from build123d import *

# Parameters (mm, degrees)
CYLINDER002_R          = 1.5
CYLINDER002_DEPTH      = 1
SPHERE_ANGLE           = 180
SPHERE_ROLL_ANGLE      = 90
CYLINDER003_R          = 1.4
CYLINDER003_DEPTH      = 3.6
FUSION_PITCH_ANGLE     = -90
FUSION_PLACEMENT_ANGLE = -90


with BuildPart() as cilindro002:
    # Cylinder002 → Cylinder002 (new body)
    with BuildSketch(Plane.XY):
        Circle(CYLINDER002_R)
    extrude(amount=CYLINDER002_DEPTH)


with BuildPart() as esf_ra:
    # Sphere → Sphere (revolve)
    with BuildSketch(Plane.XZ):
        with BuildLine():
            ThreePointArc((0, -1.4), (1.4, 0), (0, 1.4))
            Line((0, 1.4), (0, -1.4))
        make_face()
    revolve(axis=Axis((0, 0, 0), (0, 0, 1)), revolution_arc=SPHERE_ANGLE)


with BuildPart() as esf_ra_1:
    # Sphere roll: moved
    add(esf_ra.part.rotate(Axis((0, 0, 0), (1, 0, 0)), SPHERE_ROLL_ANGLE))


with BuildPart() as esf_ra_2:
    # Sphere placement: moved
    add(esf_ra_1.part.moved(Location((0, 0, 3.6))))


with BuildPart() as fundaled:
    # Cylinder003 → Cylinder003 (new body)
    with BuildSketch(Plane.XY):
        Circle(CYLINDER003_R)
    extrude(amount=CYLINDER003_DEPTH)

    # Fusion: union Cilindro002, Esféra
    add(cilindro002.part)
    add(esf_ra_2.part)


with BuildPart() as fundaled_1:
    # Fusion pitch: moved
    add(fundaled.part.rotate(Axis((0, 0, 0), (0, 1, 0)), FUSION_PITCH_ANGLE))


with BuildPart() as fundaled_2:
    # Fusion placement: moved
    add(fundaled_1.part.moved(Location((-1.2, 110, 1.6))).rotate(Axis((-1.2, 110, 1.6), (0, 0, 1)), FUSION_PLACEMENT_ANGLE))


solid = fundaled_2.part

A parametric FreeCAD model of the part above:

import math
import FreeCAD as App
import Part
import Sketcher
Q = App.Units.Quantity

doc = App.newDocument("Part")
body = doc.addObject("PartDesign::Body", "Body")

# Sketch on XY plane
sketch1 = body.newObject("Sketcher::SketchObject", "Sketch")
sketch1.AttachmentSupport = (doc.getObject("XY_Plane"), [""])
sketch1.MapMode = "FlatFace"
sketch1.addGeometry(Part.Circle(App.Vector(0, 0, 0), App.Vector(0, 0, 1), 1.5), False)
sketch1.addConstraint([
    Sketcher.Constraint("Coincident", 0, 3, -1, 1),
    Sketcher.Constraint("Diameter", 0, Q("3 mm")),
])
pad1 = body.newObject("PartDesign::Pad", "Pad")
pad1.Profile = sketch1
pad1.Length = 1
body2 = doc.addObject("PartDesign::Body", "Body001")

# Sketch on XZ plane
sketch2 = body2.newObject("Sketcher::SketchObject", "Sketch001")
sketch2.AttachmentSupport = (doc.getObject("XZ_Plane001"), [""])
sketch2.MapMode = "FlatFace"
sketch2.addGeometry([
    Part.ArcOfCircle(Part.Circle(App.Vector(0, 0, 0), App.Vector(0, 0, 1), 1.4), math.radians(-90), math.radians(90)),
    Part.LineSegment(App.Vector(0, 1.4, 0), App.Vector(0, -1.4, 0)),
], False)
sketch2.addConstraint([
    Sketcher.Constraint("Coincident", 0, 1, 1, 2),
    Sketcher.Constraint("Coincident", 1, 1, 0, 2),
    Sketcher.Constraint("Vertical", 1),
    Sketcher.Constraint("Coincident", 0, 3, -1, 1),
    Sketcher.Constraint("PointOnObject", 0, 1, -2),
    Sketcher.Constraint("Radius", 0, Q("1.4 mm")),
])
revolution = body2.newObject("PartDesign::Revolution", "Revolution")
revolution.Profile = sketch2
revolution.ReferenceAxis = (sketch2, ["V_Axis"])
revolution.Angle = 180
body3 = doc.addObject("PartDesign::Body", "Body002")
doc.recompute()

body2.Placement = App.Placement(App.Vector(0, 0, 0), App.Rotation(App.Vector(1, 0, 0), 90))
boolean = body3.newObject("PartDesign::Boolean", "Boolean")
boolean.Type = "Fuse"
boolean.addObjects([body2])
body4 = doc.addObject("PartDesign::Body", "Body003")
doc.recompute()

body3.Placement = App.Placement(App.Vector(0, 0, 3.6), App.Rotation(App.Vector(0, 0, 1), 0))
boolean2 = body4.newObject("PartDesign::Boolean", "Boolean001")
boolean2.Type = "Fuse"
boolean2.addObjects([body3])
body5 = doc.addObject("PartDesign::Body", "Body004")

# Sketch on XY plane
sketch3 = body5.newObject("Sketcher::SketchObject", "Sketch002")
sketch3.AttachmentSupport = (doc.getObject("XY_Plane004"), [""])
sketch3.MapMode = "FlatFace"
sketch3.addGeometry(Part.Circle(App.Vector(0, 0, 0), App.Vector(0, 0, 1), 1.4), False)
sketch3.addConstraint([
    Sketcher.Constraint("Coincident", 0, 3, -1, 1),
    Sketcher.Constraint("Diameter", 0, Q("2.8 mm")),
])
pad2 = body5.newObject("PartDesign::Pad", "Pad001")
pad2.Profile = sketch3
pad2.Length = 3.6
doc.recompute()

boolean3 = body5.newObject("PartDesign::Boolean", "Boolean002")
boolean3.Type = "Fuse"
boolean3.addObjects([body])
doc.recompute()

boolean4 = body5.newObject("PartDesign::Boolean", "Boolean003")
boolean4.Type = "Fuse"
boolean4.addObjects([body4])
body6 = doc.addObject("PartDesign::Body", "Body005")
doc.recompute()

body5.Placement = App.Placement(App.Vector(0, 0, 0), App.Rotation(App.Vector(0, 1, 0), 270))
boolean5 = body6.newObject("PartDesign::Boolean", "Boolean004")
boolean5.Type = "Fuse"
boolean5.addObjects([body5])
body7 = doc.addObject("PartDesign::Body", "Body006")
doc.recompute()

body6.Placement = App.Placement(App.Vector(-1.2, 110, 1.6), App.Rotation(App.Vector(0, 0, 1), 270))
boolean6 = body7.newObject("PartDesign::Boolean", "Boolean005")
boolean6.Type = "Fuse"
boolean6.addObjects([body6])

doc.recompute()
